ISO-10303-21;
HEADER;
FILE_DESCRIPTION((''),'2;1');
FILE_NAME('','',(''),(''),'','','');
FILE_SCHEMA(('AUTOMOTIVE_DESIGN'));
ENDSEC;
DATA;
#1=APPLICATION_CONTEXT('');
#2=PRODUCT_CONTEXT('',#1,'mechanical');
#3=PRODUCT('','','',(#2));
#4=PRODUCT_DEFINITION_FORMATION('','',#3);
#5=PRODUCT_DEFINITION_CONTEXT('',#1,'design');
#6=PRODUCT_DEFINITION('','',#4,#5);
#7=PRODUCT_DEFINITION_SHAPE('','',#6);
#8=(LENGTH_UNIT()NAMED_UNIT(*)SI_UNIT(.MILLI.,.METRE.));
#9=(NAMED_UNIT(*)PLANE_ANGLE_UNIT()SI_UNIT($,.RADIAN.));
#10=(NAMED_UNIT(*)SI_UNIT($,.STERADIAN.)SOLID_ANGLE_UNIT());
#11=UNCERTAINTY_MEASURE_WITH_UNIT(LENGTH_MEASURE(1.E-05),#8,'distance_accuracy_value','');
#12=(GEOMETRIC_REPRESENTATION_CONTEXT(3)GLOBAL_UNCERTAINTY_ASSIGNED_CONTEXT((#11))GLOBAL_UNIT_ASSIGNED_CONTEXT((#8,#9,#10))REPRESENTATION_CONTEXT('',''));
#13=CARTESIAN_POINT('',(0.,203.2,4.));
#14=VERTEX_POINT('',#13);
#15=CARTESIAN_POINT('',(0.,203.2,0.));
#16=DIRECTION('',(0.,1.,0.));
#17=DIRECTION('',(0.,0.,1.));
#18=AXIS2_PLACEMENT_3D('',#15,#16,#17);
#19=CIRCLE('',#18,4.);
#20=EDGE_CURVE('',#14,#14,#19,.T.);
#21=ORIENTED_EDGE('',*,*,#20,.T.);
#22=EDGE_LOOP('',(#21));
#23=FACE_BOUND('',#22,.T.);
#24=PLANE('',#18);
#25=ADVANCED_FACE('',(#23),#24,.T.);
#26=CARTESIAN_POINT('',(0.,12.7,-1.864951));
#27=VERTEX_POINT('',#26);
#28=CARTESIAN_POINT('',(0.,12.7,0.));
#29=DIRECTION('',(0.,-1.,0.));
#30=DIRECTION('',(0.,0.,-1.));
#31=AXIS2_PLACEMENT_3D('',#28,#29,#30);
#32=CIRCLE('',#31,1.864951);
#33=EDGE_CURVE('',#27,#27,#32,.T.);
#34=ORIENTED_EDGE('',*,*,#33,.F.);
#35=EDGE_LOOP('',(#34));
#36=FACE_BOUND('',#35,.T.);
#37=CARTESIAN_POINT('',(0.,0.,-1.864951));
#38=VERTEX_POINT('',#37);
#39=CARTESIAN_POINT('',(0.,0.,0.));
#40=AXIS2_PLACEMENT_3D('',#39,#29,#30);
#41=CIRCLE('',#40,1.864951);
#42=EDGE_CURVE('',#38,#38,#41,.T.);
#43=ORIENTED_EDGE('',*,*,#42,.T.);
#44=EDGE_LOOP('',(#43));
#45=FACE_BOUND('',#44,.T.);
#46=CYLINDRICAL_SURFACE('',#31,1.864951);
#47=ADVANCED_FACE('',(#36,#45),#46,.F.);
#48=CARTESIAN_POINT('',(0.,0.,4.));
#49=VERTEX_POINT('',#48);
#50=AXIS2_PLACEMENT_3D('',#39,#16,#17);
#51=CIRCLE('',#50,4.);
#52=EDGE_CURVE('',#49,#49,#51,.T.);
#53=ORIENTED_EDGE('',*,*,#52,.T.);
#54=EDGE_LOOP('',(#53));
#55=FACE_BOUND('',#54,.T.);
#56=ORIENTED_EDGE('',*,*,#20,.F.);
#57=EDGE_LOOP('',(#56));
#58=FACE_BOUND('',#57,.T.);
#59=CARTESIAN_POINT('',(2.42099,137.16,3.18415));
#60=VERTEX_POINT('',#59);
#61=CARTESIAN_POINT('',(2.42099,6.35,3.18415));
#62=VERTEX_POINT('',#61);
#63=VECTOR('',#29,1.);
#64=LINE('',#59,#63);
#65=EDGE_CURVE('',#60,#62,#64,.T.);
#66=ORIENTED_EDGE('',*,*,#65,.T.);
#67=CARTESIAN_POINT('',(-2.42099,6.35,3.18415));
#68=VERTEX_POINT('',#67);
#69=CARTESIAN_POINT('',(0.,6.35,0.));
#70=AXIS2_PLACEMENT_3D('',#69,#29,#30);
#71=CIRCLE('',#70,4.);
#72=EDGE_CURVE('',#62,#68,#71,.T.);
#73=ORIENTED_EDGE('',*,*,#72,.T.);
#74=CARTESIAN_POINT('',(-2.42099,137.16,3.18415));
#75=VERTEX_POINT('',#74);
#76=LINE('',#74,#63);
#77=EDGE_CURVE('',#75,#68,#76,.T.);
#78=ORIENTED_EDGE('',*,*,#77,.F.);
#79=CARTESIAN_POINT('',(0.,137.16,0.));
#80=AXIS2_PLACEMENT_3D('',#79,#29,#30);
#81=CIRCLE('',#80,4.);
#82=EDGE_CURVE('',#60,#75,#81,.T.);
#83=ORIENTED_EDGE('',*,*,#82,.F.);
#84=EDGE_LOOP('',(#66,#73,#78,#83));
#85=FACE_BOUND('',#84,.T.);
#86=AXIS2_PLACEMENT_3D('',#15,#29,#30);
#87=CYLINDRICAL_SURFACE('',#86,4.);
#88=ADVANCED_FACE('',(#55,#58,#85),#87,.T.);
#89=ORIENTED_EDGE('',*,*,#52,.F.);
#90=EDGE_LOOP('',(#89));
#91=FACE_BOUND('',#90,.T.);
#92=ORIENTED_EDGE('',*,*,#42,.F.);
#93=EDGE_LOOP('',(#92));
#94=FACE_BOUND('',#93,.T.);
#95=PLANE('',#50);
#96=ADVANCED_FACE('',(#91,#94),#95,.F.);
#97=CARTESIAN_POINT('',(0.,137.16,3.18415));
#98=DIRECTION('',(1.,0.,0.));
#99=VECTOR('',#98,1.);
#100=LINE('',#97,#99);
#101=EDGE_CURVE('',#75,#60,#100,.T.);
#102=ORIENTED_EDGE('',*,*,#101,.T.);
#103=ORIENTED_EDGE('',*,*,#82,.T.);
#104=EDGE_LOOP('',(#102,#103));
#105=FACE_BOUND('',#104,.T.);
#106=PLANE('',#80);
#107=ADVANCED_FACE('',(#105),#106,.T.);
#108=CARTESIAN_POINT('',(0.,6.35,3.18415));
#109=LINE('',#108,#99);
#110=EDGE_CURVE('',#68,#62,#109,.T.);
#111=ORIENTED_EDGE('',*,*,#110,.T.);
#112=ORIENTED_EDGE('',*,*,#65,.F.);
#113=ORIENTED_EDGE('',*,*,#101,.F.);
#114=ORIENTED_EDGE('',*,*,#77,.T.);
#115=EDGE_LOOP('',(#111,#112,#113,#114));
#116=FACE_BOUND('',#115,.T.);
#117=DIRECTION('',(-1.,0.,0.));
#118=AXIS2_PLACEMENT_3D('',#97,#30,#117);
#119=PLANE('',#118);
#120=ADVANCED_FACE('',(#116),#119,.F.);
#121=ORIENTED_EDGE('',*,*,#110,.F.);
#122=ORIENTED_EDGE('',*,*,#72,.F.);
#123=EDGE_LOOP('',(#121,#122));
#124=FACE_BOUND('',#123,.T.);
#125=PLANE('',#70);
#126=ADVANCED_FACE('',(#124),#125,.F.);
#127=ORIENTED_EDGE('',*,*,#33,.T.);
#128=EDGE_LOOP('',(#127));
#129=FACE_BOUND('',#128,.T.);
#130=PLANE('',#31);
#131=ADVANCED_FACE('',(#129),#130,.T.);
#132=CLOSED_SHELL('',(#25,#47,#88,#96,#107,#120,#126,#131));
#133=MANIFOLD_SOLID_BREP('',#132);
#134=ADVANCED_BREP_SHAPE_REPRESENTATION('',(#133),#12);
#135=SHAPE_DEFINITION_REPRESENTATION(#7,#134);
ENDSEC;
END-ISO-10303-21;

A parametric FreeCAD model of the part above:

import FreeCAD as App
import Part
import Sketcher
Q = App.Units.Quantity


def add_polygon(sketch, points):
    """Adds a closed chain of lines whose ends are joined by coincident constraints."""
    first, n = sketch.GeometryCount, len(points)
    for a, b in zip(points, points[1:] + points[:1]):
        sketch.addGeometry(Part.LineSegment(App.Vector(*a, 0), App.Vector(*b, 0)), False)
    for i in range(n):
        sketch.addConstraint(Sketcher.Constraint("Coincident", first + i, 2, first + (i + 1) % n, 1))

doc = App.newDocument("Part")
body = doc.addObject("PartDesign::Body", "Body")

sketch1 = doc.addObject("Sketcher::SketchObject", "Sketch")
body.addObject(sketch1)
sketch1.AttachmentSupport = (doc.XZ_Plane, [""])
sketch1.MapMode = "FlatFace"
sketch1.addGeometry(Part.Circle(App.Vector(0, 0, 0), App.Vector(0, 0, 1), 4), False)
sketch1.addConstraint([
    Sketcher.Constraint("Coincident", 0, 3, -1, 1),
    Sketcher.Constraint("Diameter", 0, 8.0),
])
pad1 = doc.addObject("PartDesign::Pad", "Pad")
body.addObject(pad1)
pad1.Profile = sketch1
pad1.Length = Q("8 in")
pad1.Reversed = True

sketch2 = doc.addObject("Sketcher::SketchObject", "Sketch001")
body.addObject(sketch2)
sketch2.AttachmentSupport = (doc.XZ_Plane, [""])
sketch2.MapMode = "FlatFace"
sketch2.addGeometry(Part.Circle(App.Vector(0, 0, 0), App.Vector(0, 0, 1), 1.9), False)
sketch2.addConstraint([
    Sketcher.Constraint("Coincident", 0, 3, -1, 1),
    Sketcher.Constraint("Diameter", 0, 3.729901),
])
pocket1 = doc.addObject("PartDesign::Pocket", "Pocket")
body.addObject(pocket1)
pocket1.Profile = sketch2
pocket1.Length = Q("0.5 in")

sketch3 = doc.addObject("Sketcher::SketchObject", "Sketch002")
body.addObject(sketch3)
sketch3.AttachmentSupport = (doc.XZ_Plane, [""])
sketch3.MapMode = "FlatFace"
sketch3.AttachmentOffset = App.Placement(App.Vector(0, 0, -0.25 * 25.4), App.Rotation())
add_polygon(sketch3, [(-32, 3), (32, 3), (32, 62), (-32, 62)])
sketch3.addConstraint([
    Sketcher.Constraint("Horizontal", 0),
    Sketcher.Constraint("Vertical", 1),
    Sketcher.Constraint("Horizontal", 2),
    Sketcher.Constraint("Vertical", 3),
    Sketcher.Constraint("DistanceX", 0, 1, 0, 2, 63.383617),
    Sketcher.Constraint("DistanceY", 1, 1, 1, 2, 58.541638),
    Sketcher.Constraint("DistanceX", -1, 1, 0, 2, 31.691809),
    Sketcher.Constraint("DistanceY", -1, 1, 0, 2, 3.18415),
])
pocket2 = doc.addObject("PartDesign::Pocket", "Pocket001")
body.addObject(pocket2)
pocket2.Profile = sketch3
pocket2.Length = Q("5.15 in")

doc.recompute()
